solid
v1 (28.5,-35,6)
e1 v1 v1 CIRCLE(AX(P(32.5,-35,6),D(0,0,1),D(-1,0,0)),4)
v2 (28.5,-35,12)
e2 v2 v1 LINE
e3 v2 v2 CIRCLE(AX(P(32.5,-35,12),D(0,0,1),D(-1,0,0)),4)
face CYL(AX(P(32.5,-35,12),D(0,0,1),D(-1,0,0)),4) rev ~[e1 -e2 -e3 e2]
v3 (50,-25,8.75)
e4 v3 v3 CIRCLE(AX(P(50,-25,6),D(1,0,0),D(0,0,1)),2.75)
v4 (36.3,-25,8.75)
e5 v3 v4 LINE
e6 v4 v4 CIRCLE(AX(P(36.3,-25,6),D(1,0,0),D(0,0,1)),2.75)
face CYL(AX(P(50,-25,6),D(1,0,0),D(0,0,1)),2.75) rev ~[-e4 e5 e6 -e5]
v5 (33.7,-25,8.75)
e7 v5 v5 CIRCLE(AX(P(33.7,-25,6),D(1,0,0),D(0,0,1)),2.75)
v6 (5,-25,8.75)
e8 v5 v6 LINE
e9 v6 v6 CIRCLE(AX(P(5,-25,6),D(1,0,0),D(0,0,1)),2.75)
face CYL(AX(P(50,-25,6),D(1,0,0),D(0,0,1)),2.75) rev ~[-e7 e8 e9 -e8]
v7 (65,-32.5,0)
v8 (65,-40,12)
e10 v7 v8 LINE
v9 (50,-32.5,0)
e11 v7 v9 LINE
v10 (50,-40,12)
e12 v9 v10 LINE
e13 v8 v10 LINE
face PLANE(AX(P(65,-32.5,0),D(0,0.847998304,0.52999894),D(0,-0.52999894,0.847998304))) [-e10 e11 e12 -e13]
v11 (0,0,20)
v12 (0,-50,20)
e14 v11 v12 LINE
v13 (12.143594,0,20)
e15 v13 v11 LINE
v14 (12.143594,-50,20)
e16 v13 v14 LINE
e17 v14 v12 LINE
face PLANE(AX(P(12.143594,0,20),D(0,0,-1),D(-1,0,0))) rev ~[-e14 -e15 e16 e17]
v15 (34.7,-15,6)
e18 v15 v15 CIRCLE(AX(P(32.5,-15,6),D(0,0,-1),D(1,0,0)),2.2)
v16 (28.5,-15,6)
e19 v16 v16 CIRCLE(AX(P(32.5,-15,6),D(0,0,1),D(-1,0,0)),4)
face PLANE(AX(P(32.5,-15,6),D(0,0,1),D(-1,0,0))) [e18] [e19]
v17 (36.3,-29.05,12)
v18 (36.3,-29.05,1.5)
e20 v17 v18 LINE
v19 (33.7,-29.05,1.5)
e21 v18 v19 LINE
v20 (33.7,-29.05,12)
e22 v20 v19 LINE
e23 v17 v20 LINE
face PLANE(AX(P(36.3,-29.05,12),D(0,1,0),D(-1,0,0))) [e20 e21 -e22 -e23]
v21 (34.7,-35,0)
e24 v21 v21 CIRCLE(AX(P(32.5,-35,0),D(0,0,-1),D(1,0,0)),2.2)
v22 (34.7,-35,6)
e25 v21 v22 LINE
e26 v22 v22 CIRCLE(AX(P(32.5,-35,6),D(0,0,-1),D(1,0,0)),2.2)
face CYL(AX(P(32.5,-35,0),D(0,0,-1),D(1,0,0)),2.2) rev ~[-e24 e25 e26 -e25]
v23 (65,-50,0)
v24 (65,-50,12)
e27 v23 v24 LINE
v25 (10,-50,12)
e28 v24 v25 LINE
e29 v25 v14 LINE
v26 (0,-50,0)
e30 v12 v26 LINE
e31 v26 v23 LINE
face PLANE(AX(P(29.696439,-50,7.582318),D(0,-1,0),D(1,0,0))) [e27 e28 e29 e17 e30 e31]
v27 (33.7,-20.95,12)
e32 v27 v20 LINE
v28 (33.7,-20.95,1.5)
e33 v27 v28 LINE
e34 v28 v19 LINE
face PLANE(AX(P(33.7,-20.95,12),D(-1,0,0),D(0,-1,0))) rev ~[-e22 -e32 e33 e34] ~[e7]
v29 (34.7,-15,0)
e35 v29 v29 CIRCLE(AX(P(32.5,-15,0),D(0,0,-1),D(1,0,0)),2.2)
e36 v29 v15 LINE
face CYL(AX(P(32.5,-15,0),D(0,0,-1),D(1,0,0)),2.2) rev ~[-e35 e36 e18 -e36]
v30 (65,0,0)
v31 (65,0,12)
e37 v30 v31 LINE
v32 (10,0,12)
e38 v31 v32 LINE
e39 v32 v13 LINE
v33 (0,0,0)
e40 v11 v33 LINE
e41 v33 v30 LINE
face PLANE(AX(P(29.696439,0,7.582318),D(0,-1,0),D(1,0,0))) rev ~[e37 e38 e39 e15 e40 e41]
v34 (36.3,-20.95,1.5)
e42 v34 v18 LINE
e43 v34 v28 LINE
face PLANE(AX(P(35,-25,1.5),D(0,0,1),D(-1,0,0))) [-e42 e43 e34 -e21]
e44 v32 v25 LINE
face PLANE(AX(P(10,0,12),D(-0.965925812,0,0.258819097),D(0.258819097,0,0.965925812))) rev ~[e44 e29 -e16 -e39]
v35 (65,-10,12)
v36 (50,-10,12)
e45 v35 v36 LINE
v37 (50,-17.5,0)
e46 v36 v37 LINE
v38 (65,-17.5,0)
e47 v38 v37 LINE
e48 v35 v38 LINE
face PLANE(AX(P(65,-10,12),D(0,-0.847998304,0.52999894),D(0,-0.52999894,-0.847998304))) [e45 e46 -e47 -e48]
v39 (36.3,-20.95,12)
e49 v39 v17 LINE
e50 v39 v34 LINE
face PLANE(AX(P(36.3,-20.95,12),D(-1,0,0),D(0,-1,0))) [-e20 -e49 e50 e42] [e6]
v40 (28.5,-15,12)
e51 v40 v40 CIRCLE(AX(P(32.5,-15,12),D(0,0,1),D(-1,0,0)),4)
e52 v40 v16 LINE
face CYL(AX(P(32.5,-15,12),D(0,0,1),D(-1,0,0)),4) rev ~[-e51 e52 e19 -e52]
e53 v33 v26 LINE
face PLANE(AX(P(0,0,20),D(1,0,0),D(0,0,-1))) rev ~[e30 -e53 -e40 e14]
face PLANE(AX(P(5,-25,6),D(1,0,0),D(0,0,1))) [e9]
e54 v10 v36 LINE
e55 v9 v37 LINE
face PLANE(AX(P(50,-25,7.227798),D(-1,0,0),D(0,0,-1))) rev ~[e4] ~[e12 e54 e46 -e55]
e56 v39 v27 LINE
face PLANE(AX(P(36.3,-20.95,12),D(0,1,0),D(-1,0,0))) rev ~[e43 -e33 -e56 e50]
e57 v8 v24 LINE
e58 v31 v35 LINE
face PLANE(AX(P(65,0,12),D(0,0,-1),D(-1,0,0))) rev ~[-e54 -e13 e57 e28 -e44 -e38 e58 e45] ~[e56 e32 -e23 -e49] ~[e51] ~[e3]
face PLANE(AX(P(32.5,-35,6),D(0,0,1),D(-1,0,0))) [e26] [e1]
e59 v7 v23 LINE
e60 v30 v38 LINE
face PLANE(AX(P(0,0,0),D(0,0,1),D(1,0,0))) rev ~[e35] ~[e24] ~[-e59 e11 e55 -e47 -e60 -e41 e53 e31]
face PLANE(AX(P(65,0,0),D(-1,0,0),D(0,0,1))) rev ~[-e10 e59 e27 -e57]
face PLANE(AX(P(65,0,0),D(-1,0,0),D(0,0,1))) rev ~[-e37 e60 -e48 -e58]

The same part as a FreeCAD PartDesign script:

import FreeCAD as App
import Part
import Sketcher
from FreeCAD import Vector
Q = App.Units.Quantity

doc = App.newDocument("Part")
params = doc.addObject("Spreadsheet::Sheet", "Params")
for row, (alias, value) in enumerate([
    ("sketch1_width", "65 mm"),
    ("sketch1_width2", "55 mm"),
    ("sketch1_height", "12 mm"),
    ("sketch1_height2", "20 mm"),
    ("pad1_length", "50 mm"),
    ("sketch2_width", "15 mm"),
    ("sketch2_width2", "30 mm"),
    ("pocket1_length", "15 mm"),
    ("sketch3_diameter", "4.4 mm"),
    ("sketch4_width", "2.6 mm"),
    ("sketch4_height", "8.1 mm"),
    ("pocket3_length", "10.5 mm"),
    ("sketch5_diameter", "8 mm"),
    ("pocket4_length", "6 mm"),
    ("sketch6_diameter", "5.5 mm"),
    ("pocket5_length", "45 mm"),
], start=1):
    params.set(f"A{row}", alias)
    params.set(f"B{row}", "=" + value)
    params.setAlias(f"B{row}", alias)

body = doc.addObject("PartDesign::Body", "Body")

# Sketch on XZ plane
sketch1 = body.newObject("Sketcher::SketchObject", "Sketch")
sketch1.AttachmentSupport = (doc.getObject("XZ_Plane"), [""])
sketch1.MapMode = "FlatFace"
sketch1.addGeometry([
    Part.LineSegment(Vector(0, 0, 0), Vector(65, 0, 0)),  # 0
    Part.LineSegment(Vector(65, 0, 0), Vector(65, 12, 0)),  # 1
    Part.LineSegment(Vector(65, 12, 0), Vector(10, 12, 0)),  # 2
    Part.LineSegment(Vector(10, 12, 0), Vector(12, 20, 0)),  # 3
    Part.LineSegment(Vector(12, 20, 0), Vector(0, 20, 0)),  # 4
    Part.LineSegment(Vector(0, 20, 0), Vector(0, 0, 0)),  # 5
], False)
sketch1.addConstraint([
    Sketcher.Constraint("Coincident", 0, 2, 1, 1),
    Sketcher.Constraint("Coincident", 1, 2, 2, 1),
    Sketcher.Constraint("Coincident", 2, 2, 3, 1),
    Sketcher.Constraint("Coincident", 3, 2, 4, 1),
    Sketcher.Constraint("Coincident", 4, 2, 5, 1),
    Sketcher.Constraint("Coincident", 5, 2, 0, 1),
    Sketcher.Constraint("Horizontal", 0),
    Sketcher.Constraint("Vertical", 1),
    Sketcher.Constraint("Horizontal", 2),
    Sketcher.Constraint("Horizontal", 4),
    Sketcher.Constraint("Vertical", 5),
    Sketcher.Constraint("Coincident", 5, 2, -1, 1),
    Sketcher.Constraint("DistanceX", 0, 1, 0, 2, 65.0),
    Sketcher.Constraint("DistanceX", 2, 2, 2, 1, 55.0),
    Sketcher.Constraint("DistanceY", 1, 1, 1, 2, 12.0),
    Sketcher.Constraint("DistanceY", 5, 2, 5, 1, 20.0),
    Sketcher.Constraint("Angle", 3, Q("74.999997 deg")),
])
sketch1.setExpression("Constraints[12]", "Params.sketch1_width")
sketch1.setExpression("Constraints[13]", "Params.sketch1_width2")
sketch1.setExpression("Constraints[14]", "Params.sketch1_height")
sketch1.setExpression("Constraints[15]", "Params.sketch1_height2")
pad1 = body.newObject("PartDesign::Pad", "Pad")
pad1.Profile = sketch1
pad1.setExpression("Length", "Params.pad1_length")

# Sketch on YZ plane
sketch2 = body.newObject("Sketcher::SketchObject", "Sketch001")
sketch2.AttachmentSupport = (doc.getObject("YZ_Plane"), [""])
sketch2.MapMode = "FlatFace"
sketch2.AttachmentOffset = App.Placement(Vector(0, 0, 65), App.Rotation())
sketch2.addGeometry([
    Part.LineSegment(Vector(-40, 12, 0), Vector(-32, 0, 0)),
    Part.LineSegment(Vector(-32, 0, 0), Vector(-18, 0, 0)),
    Part.LineSegment(Vector(-18, 0, 0), Vector(-10, 12, 0)),
    Part.LineSegment(Vector(-10, 12, 0), Vector(-40, 12, 0)),
], False)
sketch2.addConstraint([
    Sketcher.Constraint("Coincident", 0, 2, 1, 1),
    Sketcher.Constraint("Coincident", 1, 2, 2, 1),
    Sketcher.Constraint("Coincident", 2, 2, 3, 1),
    Sketcher.Constraint("Coincident", 3, 2, 0, 1),
    Sketcher.Constraint("Horizontal", 1),
    Sketcher.Constraint("Horizontal", 3),
    Sketcher.Constraint("PointOnObject", 0, 2, -1),
    Sketcher.Constraint("Equal", 0, 2),
    Sketcher.Constraint("DistanceX", 1, 1, 1, 2, 15.0),
    Sketcher.Constraint("DistanceX", 3, 2, 3, 1, 30.0),
    Sketcher.Constraint("DistanceX", 2, 2, -1, 1, 10.0),
    Sketcher.Constraint("DistanceY", -1, 1, 2, 2, 12.0),
])
sketch2.setExpression("Constraints[8]", "Params.sketch2_width")
sketch2.setExpression("Constraints[9]", "Params.sketch2_width2")
pocket1 = body.newObject("PartDesign::Pocket", "Pocket")
pocket1.Profile = sketch2
pocket1.setExpression("Length", "Params.pocket1_length")

# Sketch on XY plane
sketch3 = body.newObject("Sketcher::SketchObject", "Sketch002")
sketch3.AttachmentSupport = (doc.getObject("XY_Plane"), [""])
sketch3.MapMode = "FlatFace"
sketch3.addGeometry([
    Part.Circle(Vector(32.5, -35, 0), Vector(0, 0, 1), 2.2),
    Part.Circle(Vector(32.5, -15, 0), Vector(0, 0, 1), 2.2),
], False)
sketch3.addConstraint([
    Sketcher.Constraint("Equal", 0, 1),
    Sketcher.Constraint("Vertical", 0, 3, 1, 3),
    Sketcher.Constraint("Diameter", 0, 4.4),
    Sketcher.Constraint("DistanceY", 0, 3, -1, 1, 35.0),
    Sketcher.Constraint("DistanceY", 1, 3, -1, 1, 15.0),
    Sketcher.Constraint("DistanceX", -1, 1, 0, 3, 32.5),
])
sketch3.setExpression("Constraints[2]", "Params.sketch3_diameter")
pocket2 = body.newObject("PartDesign::Pocket", "Pocket001")
pocket2.Profile = sketch3
pocket2.Type = "ThroughAll"
pocket2.Reversed = True

# Sketch on XY plane
sketch4 = body.newObject("Sketcher::SketchObject", "Sketch003")
sketch4.AttachmentSupport = (doc.getObject("XY_Plane"), [""])
sketch4.MapMode = "FlatFace"
sketch4.AttachmentOffset = App.Placement(Vector(0, 0, 12), App.Rotation())
sketch4.addGeometry([
    Part.LineSegment(Vector(36.3, -29.1, 0), Vector(36.3, -20.9, 0)),
    Part.LineSegment(Vector(36.3, -20.9, 0), Vector(33.7, -20.9, 0)),
    Part.LineSegment(Vector(33.7, -20.9, 0), Vector(33.7, -29.1, 0)),
    Part.LineSegment(Vector(33.7, -29.1, 0), Vector(36.3, -29.1, 0)),
], False)
sketch4.addConstraint([
    Sketcher.Constraint("Coincident", 0, 2, 1, 1),
    Sketcher.Constraint("Coincident", 1, 2, 2, 1),
    Sketcher.Constraint("Coincident", 2, 2, 3, 1),
    Sketcher.Constraint("Coincident", 3, 2, 0, 1),
    Sketcher.Constraint("Vertical", 0),
    Sketcher.Constraint("Horizontal", 1),
    Sketcher.Constraint("Vertical", 2),
    Sketcher.Constraint("Horizontal", 3),
    Sketcher.Constraint("DistanceX", 1, 2, 1, 1, 2.6),
    Sketcher.Constraint("DistanceY", 0, 1, 0, 2, 8.1),
    Sketcher.Constraint("DistanceX", -1, 1, 0, 2, 36.3),
    Sketcher.Constraint("DistanceY", 0, 2, -1, 1, 20.95),
])
sketch4.setExpression("Constraints[8]", "Params.sketch4_width")
sketch4.setExpression("Constraints[9]", "Params.sketch4_height")
pocket3 = body.newObject("PartDesign::Pocket", "Pocket002")
pocket3.Profile = sketch4
pocket3.setExpression("Length", "Params.pocket3_length")

# Sketch on XY plane
sketch5 = body.newObject("Sketcher::SketchObject", "Sketch004")
sketch5.AttachmentSupport = (doc.getObject("XY_Plane"), [""])
sketch5.MapMode = "FlatFace"
sketch5.AttachmentOffset = App.Placement(Vector(0, 0, 12), App.Rotation())
sketch5.addGeometry([
    Part.Circle(Vector(32.5, -35, 0), Vector(0, 0, 1), 4),
    Part.Circle(Vector(32.5, -15, 0), Vector(0, 0, 1), 4),
], False)
sketch5.addConstraint([
    Sketcher.Constraint("Equal", 0, 1),
    Sketcher.Constraint("Vertical", 0, 3, 1, 3),
    Sketcher.Constraint("Diameter", 0, 8.0),
    Sketcher.Constraint("DistanceY", 0, 3, -1, 1, 35.0),
    Sketcher.Constraint("DistanceY", 1, 3, -1, 1, 15.0),
    Sketcher.Constraint("DistanceX", -1, 1, 0, 3, 32.5),
])
sketch5.setExpression("Constraints[2]", "Params.sketch5_diameter")
pocket4 = body.newObject("PartDesign::Pocket", "Pocket003")
pocket4.Profile = sketch5
pocket4.setExpression("Length", "Params.pocket4_length")

# Sketch on YZ plane
sketch6 = body.newObject("Sketcher::SketchObject", "Sketch005")
sketch6.AttachmentSupport = (doc.getObject("YZ_Plane"), [""])
sketch6.MapMode = "FlatFace"
sketch6.AttachmentOffset = App.Placement(Vector(0, 0, 50), App.Rotation())
sketch6.addGeometry(Part.Circle(Vector(-25, 6, 0), Vector(0, 0, 1), 2.8), False)
sketch6.addConstraint([
    Sketcher.Constraint("Diameter", 0, 5.5),
    Sketcher.Constraint("DistanceX", 0, 3, -1, 1, 25.0),
    Sketcher.Constraint("DistanceY", -1, 1, 0, 3, 6.0),
])
sketch6.setExpression("Constraints[0]", "Params.sketch6_diameter")
pocket5 = body.newObject("PartDesign::Pocket", "Pocket004")
pocket5.Profile = sketch6
pocket5.setExpression("Length", "Params.pocket5_length")

doc.recompute()
